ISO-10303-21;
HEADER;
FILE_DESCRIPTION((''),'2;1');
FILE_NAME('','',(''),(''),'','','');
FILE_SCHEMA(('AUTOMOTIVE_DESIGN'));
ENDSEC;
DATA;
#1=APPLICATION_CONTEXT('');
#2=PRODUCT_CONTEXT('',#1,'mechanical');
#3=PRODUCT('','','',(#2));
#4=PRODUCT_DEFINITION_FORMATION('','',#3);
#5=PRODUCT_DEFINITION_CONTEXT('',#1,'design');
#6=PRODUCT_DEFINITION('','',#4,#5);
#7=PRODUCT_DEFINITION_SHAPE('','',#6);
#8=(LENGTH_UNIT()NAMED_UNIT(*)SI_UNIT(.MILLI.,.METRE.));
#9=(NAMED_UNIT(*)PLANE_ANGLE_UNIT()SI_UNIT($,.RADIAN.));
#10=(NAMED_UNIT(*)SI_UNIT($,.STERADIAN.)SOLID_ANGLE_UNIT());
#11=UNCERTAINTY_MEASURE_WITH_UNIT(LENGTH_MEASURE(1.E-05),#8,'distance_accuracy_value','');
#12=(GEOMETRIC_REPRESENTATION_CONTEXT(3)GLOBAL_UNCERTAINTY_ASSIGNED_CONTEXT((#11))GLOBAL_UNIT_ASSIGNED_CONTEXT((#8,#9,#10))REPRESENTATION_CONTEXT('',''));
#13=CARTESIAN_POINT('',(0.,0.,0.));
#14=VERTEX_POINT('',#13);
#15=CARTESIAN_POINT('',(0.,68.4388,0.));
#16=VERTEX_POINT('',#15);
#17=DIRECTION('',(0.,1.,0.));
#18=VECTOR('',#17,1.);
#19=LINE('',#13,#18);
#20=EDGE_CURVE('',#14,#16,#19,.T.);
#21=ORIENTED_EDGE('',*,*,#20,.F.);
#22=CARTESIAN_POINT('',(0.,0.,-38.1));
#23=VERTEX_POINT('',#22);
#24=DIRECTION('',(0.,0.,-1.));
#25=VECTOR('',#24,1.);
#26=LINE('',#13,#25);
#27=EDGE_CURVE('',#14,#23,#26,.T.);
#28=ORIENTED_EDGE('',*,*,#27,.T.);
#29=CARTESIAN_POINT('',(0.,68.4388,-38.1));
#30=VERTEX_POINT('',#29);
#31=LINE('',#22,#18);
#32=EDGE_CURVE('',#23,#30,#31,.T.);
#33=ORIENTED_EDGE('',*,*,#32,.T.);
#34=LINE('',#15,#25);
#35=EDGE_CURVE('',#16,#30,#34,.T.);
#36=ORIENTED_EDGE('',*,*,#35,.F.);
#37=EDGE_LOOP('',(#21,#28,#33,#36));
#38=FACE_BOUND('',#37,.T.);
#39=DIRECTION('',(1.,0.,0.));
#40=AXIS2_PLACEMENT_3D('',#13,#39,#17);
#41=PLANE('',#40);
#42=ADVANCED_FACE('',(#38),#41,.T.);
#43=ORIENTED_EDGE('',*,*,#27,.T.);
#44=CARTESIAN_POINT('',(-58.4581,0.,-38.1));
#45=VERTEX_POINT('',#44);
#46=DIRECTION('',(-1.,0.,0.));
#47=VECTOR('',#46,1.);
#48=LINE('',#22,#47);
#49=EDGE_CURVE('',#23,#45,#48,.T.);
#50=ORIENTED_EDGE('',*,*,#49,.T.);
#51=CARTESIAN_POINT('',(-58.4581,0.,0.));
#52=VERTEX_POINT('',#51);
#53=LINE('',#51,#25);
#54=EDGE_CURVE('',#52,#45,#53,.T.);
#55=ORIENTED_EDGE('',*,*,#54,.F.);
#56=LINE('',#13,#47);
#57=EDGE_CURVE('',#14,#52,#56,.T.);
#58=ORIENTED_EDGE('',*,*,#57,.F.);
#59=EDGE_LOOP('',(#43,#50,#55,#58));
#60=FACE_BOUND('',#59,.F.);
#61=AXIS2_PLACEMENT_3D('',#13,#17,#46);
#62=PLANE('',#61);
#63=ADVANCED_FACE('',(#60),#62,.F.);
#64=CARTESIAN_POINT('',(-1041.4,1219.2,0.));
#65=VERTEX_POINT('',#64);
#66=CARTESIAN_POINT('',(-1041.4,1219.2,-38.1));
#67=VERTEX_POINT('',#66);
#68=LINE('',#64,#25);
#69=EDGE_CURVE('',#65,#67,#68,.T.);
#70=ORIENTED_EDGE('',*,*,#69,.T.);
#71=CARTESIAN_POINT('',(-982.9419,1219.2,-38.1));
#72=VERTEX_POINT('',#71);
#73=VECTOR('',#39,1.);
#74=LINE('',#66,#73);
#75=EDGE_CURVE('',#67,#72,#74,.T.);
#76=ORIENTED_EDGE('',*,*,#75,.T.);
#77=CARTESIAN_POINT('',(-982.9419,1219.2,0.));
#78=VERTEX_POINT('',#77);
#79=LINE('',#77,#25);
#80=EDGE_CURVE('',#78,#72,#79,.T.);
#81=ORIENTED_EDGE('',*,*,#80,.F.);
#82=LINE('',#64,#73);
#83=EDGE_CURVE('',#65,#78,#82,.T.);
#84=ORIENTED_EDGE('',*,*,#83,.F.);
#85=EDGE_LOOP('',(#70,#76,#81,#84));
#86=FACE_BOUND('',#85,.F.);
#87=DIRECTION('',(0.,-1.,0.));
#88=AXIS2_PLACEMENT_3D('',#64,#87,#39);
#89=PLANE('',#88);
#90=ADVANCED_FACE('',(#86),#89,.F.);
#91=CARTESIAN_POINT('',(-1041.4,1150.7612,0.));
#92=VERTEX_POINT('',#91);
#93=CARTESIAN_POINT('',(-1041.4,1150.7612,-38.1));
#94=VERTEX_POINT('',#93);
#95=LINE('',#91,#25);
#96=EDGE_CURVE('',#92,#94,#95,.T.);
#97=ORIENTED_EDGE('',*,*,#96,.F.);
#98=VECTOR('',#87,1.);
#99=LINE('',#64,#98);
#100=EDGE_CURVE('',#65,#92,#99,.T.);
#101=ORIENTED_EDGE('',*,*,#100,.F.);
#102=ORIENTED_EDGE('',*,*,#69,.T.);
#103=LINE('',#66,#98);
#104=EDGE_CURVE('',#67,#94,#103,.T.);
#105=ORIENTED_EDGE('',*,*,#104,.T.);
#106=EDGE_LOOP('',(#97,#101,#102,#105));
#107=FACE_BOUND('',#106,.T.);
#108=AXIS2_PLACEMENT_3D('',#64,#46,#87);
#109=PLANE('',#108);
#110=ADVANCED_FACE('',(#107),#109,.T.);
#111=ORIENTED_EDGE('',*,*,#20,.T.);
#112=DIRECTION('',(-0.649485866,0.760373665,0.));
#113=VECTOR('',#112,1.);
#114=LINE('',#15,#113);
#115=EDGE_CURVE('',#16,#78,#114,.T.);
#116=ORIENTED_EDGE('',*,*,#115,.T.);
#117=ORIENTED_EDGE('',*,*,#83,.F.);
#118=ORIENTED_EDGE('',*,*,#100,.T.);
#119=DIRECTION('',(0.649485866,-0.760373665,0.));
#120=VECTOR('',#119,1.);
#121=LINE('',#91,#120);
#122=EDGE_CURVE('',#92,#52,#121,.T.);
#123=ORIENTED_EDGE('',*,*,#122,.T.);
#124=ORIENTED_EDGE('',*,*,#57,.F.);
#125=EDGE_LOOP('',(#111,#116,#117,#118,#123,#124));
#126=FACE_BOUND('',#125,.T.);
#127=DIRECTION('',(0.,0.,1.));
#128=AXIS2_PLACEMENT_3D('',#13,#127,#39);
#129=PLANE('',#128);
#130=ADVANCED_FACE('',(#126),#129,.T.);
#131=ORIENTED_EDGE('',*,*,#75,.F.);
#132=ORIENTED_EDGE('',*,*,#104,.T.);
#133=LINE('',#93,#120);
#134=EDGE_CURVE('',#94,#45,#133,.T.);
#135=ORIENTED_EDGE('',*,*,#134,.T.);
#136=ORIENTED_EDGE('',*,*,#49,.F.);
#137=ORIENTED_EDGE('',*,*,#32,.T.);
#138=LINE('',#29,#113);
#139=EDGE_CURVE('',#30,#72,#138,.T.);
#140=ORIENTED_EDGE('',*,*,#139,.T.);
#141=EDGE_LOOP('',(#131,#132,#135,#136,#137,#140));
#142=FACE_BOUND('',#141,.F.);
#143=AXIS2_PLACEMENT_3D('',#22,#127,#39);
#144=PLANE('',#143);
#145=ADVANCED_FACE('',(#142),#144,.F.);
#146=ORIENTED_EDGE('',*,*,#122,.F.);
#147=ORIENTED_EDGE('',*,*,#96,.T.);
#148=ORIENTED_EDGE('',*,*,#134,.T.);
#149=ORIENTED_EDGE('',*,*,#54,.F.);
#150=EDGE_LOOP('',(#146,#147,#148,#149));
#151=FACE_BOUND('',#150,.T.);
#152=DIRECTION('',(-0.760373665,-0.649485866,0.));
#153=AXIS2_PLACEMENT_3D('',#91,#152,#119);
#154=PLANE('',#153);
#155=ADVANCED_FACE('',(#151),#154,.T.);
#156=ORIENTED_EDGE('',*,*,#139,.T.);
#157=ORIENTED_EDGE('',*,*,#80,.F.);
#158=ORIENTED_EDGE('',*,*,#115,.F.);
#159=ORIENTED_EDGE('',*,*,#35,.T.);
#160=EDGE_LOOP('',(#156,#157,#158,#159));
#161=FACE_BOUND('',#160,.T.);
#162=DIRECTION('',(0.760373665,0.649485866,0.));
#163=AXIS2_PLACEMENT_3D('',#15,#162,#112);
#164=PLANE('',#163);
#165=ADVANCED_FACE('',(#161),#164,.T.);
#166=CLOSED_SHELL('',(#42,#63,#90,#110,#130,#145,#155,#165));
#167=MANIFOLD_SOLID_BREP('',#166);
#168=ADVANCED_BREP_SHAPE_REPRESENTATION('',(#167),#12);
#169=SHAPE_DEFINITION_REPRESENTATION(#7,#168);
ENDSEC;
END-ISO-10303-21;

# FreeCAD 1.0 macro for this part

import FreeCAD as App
import Part
import Sketcher

V = App.Vector
Q = App.Units.Quantity


def add_polygon(sketch, points):
    """Adds a closed chain of lines whose ends are joined by coincident constraints."""
    first, n = sketch.GeometryCount, len(points)
    for a, b in zip(points, points[1:] + points[:1]):
        sketch.addGeometry(Part.LineSegment(App.Vector(*a, 0), App.Vector(*b, 0)), False)
    for i in range(n):
        sketch.addConstraint(Sketcher.Constraint("Coincident", first + i, 2, first + (i + 1) % n, 1))

doc = App.newDocument("Part")
params = doc.addObject("Spreadsheet::Sheet", "Params")
for row, (alias, value) in enumerate([
    ("pad1_length", "1.5 in"),
], start=1):
    params.set(f"A{row}", alias)
    params.set(f"B{row}", "=" + value)
    params.setAlias(f"B{row}", alias)

body = doc.addObject("PartDesign::Body", "Body")

sketch1 = doc.addObject("Sketcher::SketchObject", "Sketch")
body.addObject(sketch1)
sketch1.AttachmentSupport = (doc.XY_Plane, [""])
sketch1.MapMode = "FlatFace"
add_polygon(sketch1, [(-982.9419, 1219.2), (-1041.4, 1219.2), (-1041.4, 1150.7612), (-58.4581, 0), (0, 0), (0, 68.4388)])
sketch1.addConstraint([
    Sketcher.Constraint("Horizontal", 0),
    Sketcher.Constraint("Vertical", 1),
    Sketcher.Constraint("Horizontal", 3),
    Sketcher.Constraint("Vertical", 4),
    Sketcher.Constraint("Coincident", 3, 2, -1, 1),
    Sketcher.Constraint("Parallel", 2, 5),
    Sketcher.Constraint("Equal", 0, 3),
    Sketcher.Constraint("DistanceX", 0, 2, -1, 1, Q("41 in")),
    Sketcher.Constraint("DistanceY", -1, 1, 0, 2, Q("48 in")),
    Sketcher.Constraint("DistanceX", 0, 2, 0, 1, Q("2.3015 in")),
    Sketcher.Constraint("DistanceY", 1, 2, 1, 1, Q("68.4388 mm")),
])
pad1 = doc.addObject("PartDesign::Pad", "Pad")
body.addObject(pad1)
pad1.Profile = sketch1
pad1.setExpression("Length", "Params.pad1_length")
pad1.Reversed = True

doc.recompute()
